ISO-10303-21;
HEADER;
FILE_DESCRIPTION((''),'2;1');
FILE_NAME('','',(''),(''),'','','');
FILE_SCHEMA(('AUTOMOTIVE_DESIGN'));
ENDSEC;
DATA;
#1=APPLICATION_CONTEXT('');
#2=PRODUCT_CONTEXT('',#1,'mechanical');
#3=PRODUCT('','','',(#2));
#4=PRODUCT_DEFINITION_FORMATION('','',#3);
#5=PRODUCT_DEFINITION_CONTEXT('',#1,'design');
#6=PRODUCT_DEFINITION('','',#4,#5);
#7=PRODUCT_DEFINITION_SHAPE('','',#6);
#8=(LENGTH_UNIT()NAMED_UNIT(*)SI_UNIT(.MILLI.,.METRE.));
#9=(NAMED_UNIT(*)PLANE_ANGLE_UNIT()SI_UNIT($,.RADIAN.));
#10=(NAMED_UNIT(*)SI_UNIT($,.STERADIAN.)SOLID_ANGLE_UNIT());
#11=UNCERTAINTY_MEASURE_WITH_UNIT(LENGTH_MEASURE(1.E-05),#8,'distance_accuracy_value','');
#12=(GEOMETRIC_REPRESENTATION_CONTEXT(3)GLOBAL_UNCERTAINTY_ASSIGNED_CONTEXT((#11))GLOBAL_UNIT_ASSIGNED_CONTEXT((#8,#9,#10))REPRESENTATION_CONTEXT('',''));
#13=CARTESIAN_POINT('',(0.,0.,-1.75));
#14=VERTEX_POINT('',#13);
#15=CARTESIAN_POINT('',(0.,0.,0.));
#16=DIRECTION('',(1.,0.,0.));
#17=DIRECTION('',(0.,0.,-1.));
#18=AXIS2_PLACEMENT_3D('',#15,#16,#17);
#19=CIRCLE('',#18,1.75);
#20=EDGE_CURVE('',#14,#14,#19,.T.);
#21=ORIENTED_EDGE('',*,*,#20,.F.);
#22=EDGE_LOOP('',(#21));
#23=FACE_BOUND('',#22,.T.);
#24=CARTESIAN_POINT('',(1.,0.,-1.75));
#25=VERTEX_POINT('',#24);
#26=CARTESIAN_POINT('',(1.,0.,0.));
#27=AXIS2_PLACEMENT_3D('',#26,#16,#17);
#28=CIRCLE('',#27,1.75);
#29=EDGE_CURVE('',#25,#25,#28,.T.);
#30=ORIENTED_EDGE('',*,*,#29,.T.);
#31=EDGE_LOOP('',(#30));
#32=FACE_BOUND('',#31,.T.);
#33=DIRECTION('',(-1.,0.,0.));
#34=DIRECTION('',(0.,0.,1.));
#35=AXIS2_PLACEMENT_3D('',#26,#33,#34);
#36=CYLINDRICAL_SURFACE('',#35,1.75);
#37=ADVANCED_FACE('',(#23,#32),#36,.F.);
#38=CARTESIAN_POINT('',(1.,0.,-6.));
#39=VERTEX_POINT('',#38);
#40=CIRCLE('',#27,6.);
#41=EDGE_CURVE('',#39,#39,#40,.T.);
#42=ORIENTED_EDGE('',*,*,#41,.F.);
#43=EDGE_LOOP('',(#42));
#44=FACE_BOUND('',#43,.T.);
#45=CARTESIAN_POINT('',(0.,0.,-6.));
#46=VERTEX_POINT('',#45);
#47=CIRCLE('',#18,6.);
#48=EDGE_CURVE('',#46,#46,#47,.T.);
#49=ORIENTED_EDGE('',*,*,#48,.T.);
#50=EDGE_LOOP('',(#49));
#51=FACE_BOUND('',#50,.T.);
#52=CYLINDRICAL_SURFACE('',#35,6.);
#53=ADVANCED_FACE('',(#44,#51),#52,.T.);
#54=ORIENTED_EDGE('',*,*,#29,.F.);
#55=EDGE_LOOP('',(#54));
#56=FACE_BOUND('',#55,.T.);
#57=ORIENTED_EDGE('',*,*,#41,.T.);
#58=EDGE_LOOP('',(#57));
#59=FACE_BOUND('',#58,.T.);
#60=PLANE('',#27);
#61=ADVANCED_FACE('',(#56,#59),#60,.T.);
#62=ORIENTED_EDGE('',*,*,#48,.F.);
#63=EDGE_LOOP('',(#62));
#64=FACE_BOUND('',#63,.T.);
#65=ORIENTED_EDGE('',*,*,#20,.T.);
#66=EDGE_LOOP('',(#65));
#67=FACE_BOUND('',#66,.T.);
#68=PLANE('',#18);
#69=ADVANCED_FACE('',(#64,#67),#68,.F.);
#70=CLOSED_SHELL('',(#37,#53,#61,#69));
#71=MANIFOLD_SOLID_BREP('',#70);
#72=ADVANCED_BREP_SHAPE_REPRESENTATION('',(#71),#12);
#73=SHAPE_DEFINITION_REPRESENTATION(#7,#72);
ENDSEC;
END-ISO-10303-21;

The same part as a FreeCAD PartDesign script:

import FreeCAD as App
import Part
import Sketcher
from FreeCAD import Vector
Q = App.Units.Quantity

doc = App.newDocument("Part")
body = doc.addObject("PartDesign::Body", "Body")

# Sketch on YZ plane
sketch1 = doc.addObject("Sketcher::SketchObject", "Sketch")
body.addObject(sketch1)
sketch1.AttachmentSupport = (doc.YZ_Plane, [""])
sketch1.MapMode = "FlatFace"
sketch1.addGeometry([
    Part.Circle(Vector(0, 0, 0), Vector(0, 0, 1), 6),
    Part.Circle(Vector(0, 0, 0), Vector(0, 0, 1), 1.8),
], False)
sketch1.addConstraint([
    Sketcher.Constraint("Coincident", 0, 3, -1, 1),
    Sketcher.Constraint("Coincident", 1, 3, -1, 1),
    Sketcher.Constraint("Diameter", 0, Q("12 mm")),
    Sketcher.Constraint("Diameter", 1, Q("3.5 mm")),
])
pad1 = doc.addObject("PartDesign::Pad", "Pad")
body.addObject(pad1)
pad1.Profile = sketch1
pad1.Length = 1

doc.recompute()
